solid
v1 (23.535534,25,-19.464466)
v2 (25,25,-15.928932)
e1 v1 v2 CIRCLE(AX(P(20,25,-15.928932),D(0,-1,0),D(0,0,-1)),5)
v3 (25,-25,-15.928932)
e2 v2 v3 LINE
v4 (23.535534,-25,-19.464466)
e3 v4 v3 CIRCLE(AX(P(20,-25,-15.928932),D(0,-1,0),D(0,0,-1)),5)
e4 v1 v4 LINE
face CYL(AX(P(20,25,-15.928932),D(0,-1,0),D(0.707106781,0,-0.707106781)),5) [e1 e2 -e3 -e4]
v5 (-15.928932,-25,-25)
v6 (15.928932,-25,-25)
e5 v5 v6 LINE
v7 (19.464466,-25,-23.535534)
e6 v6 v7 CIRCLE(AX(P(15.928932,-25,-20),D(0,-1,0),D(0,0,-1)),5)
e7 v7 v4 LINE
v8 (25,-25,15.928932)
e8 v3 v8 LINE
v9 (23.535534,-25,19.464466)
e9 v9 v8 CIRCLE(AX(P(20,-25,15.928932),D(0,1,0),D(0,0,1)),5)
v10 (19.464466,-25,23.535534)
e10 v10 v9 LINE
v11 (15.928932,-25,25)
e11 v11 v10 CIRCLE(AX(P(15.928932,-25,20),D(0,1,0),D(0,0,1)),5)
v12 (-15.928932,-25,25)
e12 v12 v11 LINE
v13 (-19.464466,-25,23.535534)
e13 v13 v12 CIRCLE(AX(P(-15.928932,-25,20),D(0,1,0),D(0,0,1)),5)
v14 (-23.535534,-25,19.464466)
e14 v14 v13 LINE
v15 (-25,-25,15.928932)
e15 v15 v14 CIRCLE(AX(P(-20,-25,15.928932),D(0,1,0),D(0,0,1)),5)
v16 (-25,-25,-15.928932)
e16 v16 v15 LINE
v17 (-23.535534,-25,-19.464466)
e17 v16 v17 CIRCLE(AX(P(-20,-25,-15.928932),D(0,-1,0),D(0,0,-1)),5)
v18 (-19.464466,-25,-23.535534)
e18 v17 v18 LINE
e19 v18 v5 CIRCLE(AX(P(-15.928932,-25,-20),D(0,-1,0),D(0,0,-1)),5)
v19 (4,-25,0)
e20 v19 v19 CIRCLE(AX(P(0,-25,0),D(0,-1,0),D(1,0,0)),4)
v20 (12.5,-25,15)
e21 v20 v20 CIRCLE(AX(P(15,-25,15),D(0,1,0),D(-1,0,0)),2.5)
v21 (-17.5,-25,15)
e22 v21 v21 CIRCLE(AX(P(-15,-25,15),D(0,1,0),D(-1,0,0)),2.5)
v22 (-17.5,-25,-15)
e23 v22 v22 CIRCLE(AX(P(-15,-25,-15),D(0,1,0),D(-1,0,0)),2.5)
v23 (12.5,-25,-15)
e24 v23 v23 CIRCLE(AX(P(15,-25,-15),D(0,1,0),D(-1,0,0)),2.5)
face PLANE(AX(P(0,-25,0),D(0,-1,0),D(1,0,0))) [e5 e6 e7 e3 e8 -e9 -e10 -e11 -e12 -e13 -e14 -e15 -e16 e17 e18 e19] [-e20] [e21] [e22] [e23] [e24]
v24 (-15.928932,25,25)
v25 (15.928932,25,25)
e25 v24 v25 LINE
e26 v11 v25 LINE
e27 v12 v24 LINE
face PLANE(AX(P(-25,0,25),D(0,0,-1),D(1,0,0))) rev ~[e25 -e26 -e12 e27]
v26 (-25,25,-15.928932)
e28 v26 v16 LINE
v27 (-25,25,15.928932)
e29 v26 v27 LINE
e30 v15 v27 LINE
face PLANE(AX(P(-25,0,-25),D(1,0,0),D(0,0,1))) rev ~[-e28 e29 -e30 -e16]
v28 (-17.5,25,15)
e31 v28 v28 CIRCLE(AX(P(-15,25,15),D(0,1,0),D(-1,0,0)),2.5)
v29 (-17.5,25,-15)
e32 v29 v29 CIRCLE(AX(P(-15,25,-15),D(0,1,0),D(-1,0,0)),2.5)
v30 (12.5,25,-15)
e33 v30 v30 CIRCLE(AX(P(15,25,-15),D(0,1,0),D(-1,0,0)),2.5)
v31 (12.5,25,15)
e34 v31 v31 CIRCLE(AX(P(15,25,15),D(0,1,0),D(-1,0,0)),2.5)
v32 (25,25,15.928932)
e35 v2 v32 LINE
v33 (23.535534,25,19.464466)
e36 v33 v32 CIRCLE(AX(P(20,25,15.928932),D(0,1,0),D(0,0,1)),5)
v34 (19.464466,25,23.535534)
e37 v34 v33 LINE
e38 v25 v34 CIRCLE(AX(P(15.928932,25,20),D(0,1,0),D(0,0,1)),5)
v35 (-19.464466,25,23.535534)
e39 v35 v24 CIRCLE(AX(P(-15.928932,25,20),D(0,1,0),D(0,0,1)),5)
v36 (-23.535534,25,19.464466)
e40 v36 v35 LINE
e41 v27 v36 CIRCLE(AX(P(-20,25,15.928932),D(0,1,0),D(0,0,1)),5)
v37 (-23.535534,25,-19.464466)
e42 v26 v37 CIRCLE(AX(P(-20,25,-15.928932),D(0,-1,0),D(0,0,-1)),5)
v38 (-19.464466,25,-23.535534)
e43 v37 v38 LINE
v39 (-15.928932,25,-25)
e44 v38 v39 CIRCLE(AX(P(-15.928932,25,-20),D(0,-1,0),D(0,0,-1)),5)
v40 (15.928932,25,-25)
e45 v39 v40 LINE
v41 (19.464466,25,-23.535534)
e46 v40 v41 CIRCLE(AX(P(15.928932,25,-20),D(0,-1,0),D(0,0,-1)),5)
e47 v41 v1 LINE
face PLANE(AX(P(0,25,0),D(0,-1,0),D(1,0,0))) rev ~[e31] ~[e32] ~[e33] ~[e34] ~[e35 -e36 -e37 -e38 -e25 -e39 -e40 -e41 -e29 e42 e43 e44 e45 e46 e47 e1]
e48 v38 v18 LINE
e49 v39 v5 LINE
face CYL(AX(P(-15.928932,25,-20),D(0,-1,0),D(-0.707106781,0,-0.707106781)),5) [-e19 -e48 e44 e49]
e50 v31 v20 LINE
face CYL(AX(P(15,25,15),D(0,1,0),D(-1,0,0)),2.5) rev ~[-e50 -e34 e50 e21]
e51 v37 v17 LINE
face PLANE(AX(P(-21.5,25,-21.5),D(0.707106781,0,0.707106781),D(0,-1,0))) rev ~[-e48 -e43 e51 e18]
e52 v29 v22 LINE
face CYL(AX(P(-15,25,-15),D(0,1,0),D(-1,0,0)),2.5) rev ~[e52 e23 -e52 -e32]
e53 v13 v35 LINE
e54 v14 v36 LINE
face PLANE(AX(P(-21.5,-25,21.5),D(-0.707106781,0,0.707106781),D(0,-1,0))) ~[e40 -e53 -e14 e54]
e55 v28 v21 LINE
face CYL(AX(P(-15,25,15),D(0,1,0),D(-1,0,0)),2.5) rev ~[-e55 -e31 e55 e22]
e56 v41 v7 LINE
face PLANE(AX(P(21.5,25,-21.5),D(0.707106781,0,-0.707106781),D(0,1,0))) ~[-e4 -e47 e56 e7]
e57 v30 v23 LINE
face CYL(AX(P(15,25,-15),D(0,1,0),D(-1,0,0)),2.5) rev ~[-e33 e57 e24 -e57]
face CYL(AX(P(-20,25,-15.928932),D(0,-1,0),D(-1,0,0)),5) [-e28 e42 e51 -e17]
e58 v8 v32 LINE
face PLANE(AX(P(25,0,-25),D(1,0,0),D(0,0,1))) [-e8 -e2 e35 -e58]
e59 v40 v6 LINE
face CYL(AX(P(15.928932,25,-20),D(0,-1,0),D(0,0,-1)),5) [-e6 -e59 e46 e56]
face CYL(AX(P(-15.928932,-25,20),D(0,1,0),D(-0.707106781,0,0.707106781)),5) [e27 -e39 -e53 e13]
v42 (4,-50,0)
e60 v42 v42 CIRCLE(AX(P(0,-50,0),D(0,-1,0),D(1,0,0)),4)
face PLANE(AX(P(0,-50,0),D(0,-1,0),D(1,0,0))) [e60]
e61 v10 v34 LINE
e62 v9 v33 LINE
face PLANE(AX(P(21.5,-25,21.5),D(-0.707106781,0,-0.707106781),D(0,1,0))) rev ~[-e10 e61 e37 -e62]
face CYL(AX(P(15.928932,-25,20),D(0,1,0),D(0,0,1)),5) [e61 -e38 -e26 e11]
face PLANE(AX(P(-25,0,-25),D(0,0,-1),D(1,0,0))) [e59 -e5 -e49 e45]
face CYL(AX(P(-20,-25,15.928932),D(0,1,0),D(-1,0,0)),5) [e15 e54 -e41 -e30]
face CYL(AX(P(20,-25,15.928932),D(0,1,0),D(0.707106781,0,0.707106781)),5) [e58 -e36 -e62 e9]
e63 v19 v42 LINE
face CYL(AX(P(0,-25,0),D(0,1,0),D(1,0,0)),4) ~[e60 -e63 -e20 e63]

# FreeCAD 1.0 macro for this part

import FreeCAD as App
import Part
import Sketcher

V = App.Vector


def edges_at(feature, points):
    """Names of the edges that pass closest to the given points."""
    edges = feature.Shape.Edges
    near = lambda p: min(range(len(edges)), key=lambda i: edges[i].distToShape(Part.Vertex(*p))[0])
    return sorted({f"Edge{near(p) + 1}" for p in points})


def add_polygon(sketch, points):
    """Adds a closed chain of lines whose ends are joined by coincident constraints."""
    first, n = sketch.GeometryCount, len(points)
    for a, b in zip(points, points[1:] + points[:1]):
        sketch.addGeometry(Part.LineSegment(App.Vector(*a, 0), App.Vector(*b, 0)), False)
    for i in range(n):
        sketch.addConstraint(Sketcher.Constraint("Coincident", first + i, 2, first + (i + 1) % n, 1))

doc = App.newDocument("Part")
body = doc.addObject("PartDesign::Body", "Body")

# Sketch on XZ plane
sketch1 = body.newObject("Sketcher::SketchObject", "Sketch")
sketch1.AttachmentSupport = (doc.getObject("XZ_Plane"), [""])
sketch1.MapMode = "FlatFace"
add_polygon(sketch1, [(-25, 25), (-25, -25), (25, -25), (25, 25)])  # lines 0-3
sketch1.addConstraint(Sketcher.Constraint("Vertical", 0))
sketch1.addConstraint(Sketcher.Constraint("Horizontal", 1))
sketch1.addConstraint(Sketcher.Constraint("Vertical", 2))
sketch1.addConstraint(Sketcher.Constraint("Horizontal", 3))
sketch1.addConstraint(Sketcher.Constraint("Symmetric", 0, 2, 2, 2, -1, 1))
sketch1.addConstraint(Sketcher.Constraint("Equal", 3, 0))
sketch1.addConstraint(Sketcher.Constraint("DistanceX", 1, 1, 1, 2, 50.0))
pad1 = body.newObject("PartDesign::Pad", "Pad")
pad1.Profile = sketch1
pad1.Type = "TwoLengths"
pad1.Length = 25
pad1.Length2 = 25

# Sketch on XZ plane
sketch2 = body.newObject("Sketcher::SketchObject", "Sketch001")
sketch2.AttachmentSupport = (doc.getObject("XZ_Plane"), [""])
sketch2.MapMode = "FlatFace"
sketch2.AttachmentOffset = App.Placement(V(0, 0, 25), App.Rotation())
sketch2.addGeometry(Part.Circle(V(0, 0, 0), V(0, 0, 1), 4), False)
sketch2.addConstraint(Sketcher.Constraint("Coincident", 0, 3, -1, 1))
sketch2.addConstraint(Sketcher.Constraint("Diameter", 0, 8.0))
pad2 = body.newObject("PartDesign::Pad", "Pad001")
pad2.Profile = sketch2
pad2.Length = 25
doc.recompute()

chamfer = body.newObject("PartDesign::Chamfer", "Chamfer")
chamfer.Base = (pad2, edges_at(pad2, [
    (-25, 0, 25),
    (25, 0, 25),
    (25, 0, -25),
    (-25, 0, -25),
]))
chamfer.Size = 7
doc.recompute()

fillet = body.newObject("PartDesign::Fillet", "Fillet")
fillet.Base = (chamfer, edges_at(chamfer, [
    (-18, 0, 25),
    (-25, 0, 18),
    (18, 0, 25),
    (25, 0, 18),
    (25, 0, -18),
    (18, 0, -25),
    (-18, 0, -25),
    (-25, 0, -18),
]))
fillet.Radius = 5

# Sketch on XZ plane
sketch3 = body.newObject("Sketcher::SketchObject", "Sketch002")
sketch3.AttachmentSupport = (doc.getObject("XZ_Plane"), [""])
sketch3.MapMode = "FlatFace"
sketch3.AttachmentOffset = App.Placement(V(0, 0, -25), App.Rotation())
sketch3.addGeometry(Part.Circle(V(15, 15, 0), V(0, 0, 1), 2.5), False)
sketch3.addGeometry(Part.Circle(V(-15, 15, 0), V(0, 0, 1), 2.5), False)
sketch3.addGeometry(Part.Circle(V(-15, -15, 0), V(0, 0, 1), 2.5), False)
sketch3.addGeometry(Part.Circle(V(15, -15, 0), V(0, 0, 1), 2.5), False)
sketch3.addConstraint(Sketcher.Constraint("Equal", 0, 1))
sketch3.addConstraint(Sketcher.Constraint("Equal", 1, 2))
sketch3.addConstraint(Sketcher.Constraint("Equal", 2, 3))
sketch3.addConstraint(Sketcher.Constraint("Symmetric", 0, 3, 2, 3, -1, 1))
sketch3.addConstraint(Sketcher.Constraint("Symmetric", 1, 3, 3, 3, -1, 1))
sketch3.addConstraint(Sketcher.Constraint("Symmetric", 0, 3, 1, 3, -2))
sketch3.addConstraint(Sketcher.Constraint("Diameter", 0, 5.0))
sketch3.addConstraint(Sketcher.Constraint("DistanceX", -1, 1, 0, 3, 15.0))
sketch3.addConstraint(Sketcher.Constraint("DistanceY", -1, 1, 0, 3, 15.0))
pocket1 = body.newObject("PartDesign::Pocket", "Pocket")
pocket1.Profile = sketch3
pocket1.Length = 50
pocket1.Reversed = True

doc.recompute()
